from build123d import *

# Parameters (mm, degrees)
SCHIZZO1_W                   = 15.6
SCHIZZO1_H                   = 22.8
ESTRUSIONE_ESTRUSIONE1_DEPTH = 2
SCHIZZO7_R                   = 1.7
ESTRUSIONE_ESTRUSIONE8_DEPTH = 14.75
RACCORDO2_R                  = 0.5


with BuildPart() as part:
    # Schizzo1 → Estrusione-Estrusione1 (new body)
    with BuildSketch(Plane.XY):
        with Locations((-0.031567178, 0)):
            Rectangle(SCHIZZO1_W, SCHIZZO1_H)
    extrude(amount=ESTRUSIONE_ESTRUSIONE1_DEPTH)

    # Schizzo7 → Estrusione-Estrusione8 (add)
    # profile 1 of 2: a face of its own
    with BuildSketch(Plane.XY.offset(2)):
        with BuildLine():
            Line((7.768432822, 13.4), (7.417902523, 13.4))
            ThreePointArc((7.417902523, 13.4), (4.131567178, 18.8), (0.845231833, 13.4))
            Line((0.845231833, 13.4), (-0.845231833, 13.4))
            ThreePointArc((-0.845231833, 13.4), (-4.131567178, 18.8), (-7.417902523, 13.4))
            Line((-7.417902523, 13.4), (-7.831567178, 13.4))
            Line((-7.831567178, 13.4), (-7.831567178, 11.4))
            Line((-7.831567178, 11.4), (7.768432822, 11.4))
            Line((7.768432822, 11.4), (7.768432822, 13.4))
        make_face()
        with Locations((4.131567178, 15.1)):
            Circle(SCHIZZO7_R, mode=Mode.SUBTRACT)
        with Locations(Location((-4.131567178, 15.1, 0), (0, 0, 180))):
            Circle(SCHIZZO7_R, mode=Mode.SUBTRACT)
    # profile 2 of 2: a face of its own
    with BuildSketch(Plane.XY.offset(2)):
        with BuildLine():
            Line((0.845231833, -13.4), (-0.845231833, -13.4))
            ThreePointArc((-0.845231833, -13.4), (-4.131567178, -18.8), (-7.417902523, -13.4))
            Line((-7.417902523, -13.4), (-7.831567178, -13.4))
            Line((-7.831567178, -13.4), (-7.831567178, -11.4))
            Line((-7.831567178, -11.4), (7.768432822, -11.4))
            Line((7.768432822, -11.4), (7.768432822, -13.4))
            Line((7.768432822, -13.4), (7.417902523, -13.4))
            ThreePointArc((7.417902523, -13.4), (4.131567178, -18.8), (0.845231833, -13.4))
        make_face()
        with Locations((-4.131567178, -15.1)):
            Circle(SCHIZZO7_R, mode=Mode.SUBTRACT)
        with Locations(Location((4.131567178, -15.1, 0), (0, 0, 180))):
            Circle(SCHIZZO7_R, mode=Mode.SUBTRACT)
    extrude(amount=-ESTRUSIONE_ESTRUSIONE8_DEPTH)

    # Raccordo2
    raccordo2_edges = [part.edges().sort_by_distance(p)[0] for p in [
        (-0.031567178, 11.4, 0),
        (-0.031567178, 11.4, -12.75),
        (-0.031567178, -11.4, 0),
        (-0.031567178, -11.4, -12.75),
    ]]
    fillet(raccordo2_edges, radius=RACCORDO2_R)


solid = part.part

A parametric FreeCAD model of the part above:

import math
import FreeCAD as App
import Part
import Sketcher
from FreeCAD import Vector
Q = App.Units.Quantity


def edges_at(feature, points):
    """Names of the edges that pass closest to the given points."""
    edges = feature.Shape.Edges
    near = lambda p: min(range(len(edges)), key=lambda i: edges[i].distToShape(Part.Vertex(*p))[0])
    return sorted({f"Edge{near(p) + 1}" for p in points})


def add_polygon(sketch, points):
    """Adds a closed chain of lines whose ends are joined by coincident constraints."""
    first, n = sketch.GeometryCount, len(points)
    for a, b in zip(points, points[1:] + points[:1]):
        sketch.addGeometry(Part.LineSegment(App.Vector(*a, 0), App.Vector(*b, 0)), False)
    for i in range(n):
        sketch.addConstraint(Sketcher.Constraint("Coincident", first + i, 2, first + (i + 1) % n, 1))

doc = App.newDocument("Part")
body = doc.addObject("PartDesign::Body", "Body")

# Sketch on XY plane
sketch1 = doc.addObject("Sketcher::SketchObject", "Sketch")
body.addObject(sketch1)
sketch1.AttachmentSupport = (doc.XY_Plane, [""])
sketch1.MapMode = "FlatFace"
add_polygon(sketch1, [(-7.831567, 11.4), (-7.831567, -11.4), (7.768433, -11.4), (7.768433, 11.4)])  # lines 0-3
sketch1.addConstraint([
    Sketcher.Constraint("Vertical", 0),
    Sketcher.Constraint("Horizontal", 1),
    Sketcher.Constraint("Vertical", 2),
    Sketcher.Constraint("Horizontal", 3),
    Sketcher.Constraint("DistanceX", 1, 1, 1, 2, Q("15.6 mm")),
    Sketcher.Constraint("DistanceY", 0, 2, 0, 1, Q("22.8 mm")),
    Sketcher.Constraint("DistanceY", 0, 2, -1, 1, Q("11.4 mm")),
    Sketcher.Constraint("DistanceX", 0, 2, -1, 1, Q("7.831567 mm")),
])
pad1 = doc.addObject("PartDesign::Pad", "Pad")
body.addObject(pad1)
pad1.Profile = sketch1
pad1.Length = 2

# Sketch on XY plane
sketch2 = doc.addObject("Sketcher::SketchObject", "Sketch001")
body.addObject(sketch2)
sketch2.AttachmentSupport = (doc.XY_Plane, [""])
sketch2.MapMode = "FlatFace"
sketch2.AttachmentOffset = App.Placement(Vector(0, 0, 2), App.Rotation())
sketch2.addGeometry([
    Part.LineSegment(Vector(7.768433, 13.4, 0), Vector(7.417903, 13.4, 0)),  # 0
    Part.ArcOfCircle(Part.Circle(Vector(4.131567, 15.1, 0), Vector(0, 0, 1), 3.7), math.radians(-27.352233), math.radians(207.352233)),  # 1
    Part.LineSegment(Vector(0.845232, 13.4, 0), Vector(-0.845232, 13.4, 0)),  # 2
    Part.ArcOfCircle(Part.Circle(Vector(-4.131567, 15.1, 0), Vector(0, 0, 1), 3.7), math.radians(-27.352233), math.radians(207.352233)),  # 3
    Part.LineSegment(Vector(-7.417903, 13.4, 0), Vector(-7.831567, 13.4, 0)),  # 4
    Part.LineSegment(Vector(-7.831567, 13.4, 0), Vector(-7.831567, 11.4, 0)),  # 5
    Part.LineSegment(Vector(-7.831567, 11.4, 0), Vector(7.768433, 11.4, 0)),  # 6
    Part.LineSegment(Vector(7.768433, 11.4, 0), Vector(7.768433, 13.4, 0)),  # 7
    Part.Circle(Vector(-4.131567, 15.1, 0), Vector(0, 0, 1), 1.7),  # 8
    Part.Circle(Vector(4.131567, 15.1, 0), Vector(0, 0, 1), 1.7),  # 9
    Part.LineSegment(Vector(-0.845232, -13.4, 0), Vector(0.845232, -13.4, 0)),  # 10
    Part.ArcOfCircle(Part.Circle(Vector(4.131567, -15.1, 0), Vector(0, 0, 1), 3.7), math.radians(152.647767), math.radians(387.352233)),  # 11
    Part.LineSegment(Vector(7.417903, -13.4, 0), Vector(7.768433, -13.4, 0)),  # 12
    Part.LineSegment(Vector(7.768433, -13.4, 0), Vector(7.768433, -11.4, 0)),  # 13
    Part.LineSegment(Vector(7.768433, -11.4, 0), Vector(-7.831567, -11.4, 0)),  # 14
    Part.LineSegment(Vector(-7.831567, -11.4, 0), Vector(-7.831567, -13.4, 0)),  # 15
    Part.LineSegment(Vector(-7.831567, -13.4, 0), Vector(-7.417903, -13.4, 0)),  # 16
    Part.ArcOfCircle(Part.Circle(Vector(-4.131567, -15.1, 0), Vector(0, 0, 1), 3.7), math.radians(152.647767), math.radians(387.352233)),  # 17
    Part.Circle(Vector(4.131567, -15.1, 0), Vector(0, 0, 1), 1.7),  # 18
    Part.Circle(Vector(-4.131567, -15.1, 0), Vector(0, 0, 1), 1.7),  # 19
], False)
sketch2.addConstraint([
    Sketcher.Constraint("Coincident", 0, 2, 1, 1),
    Sketcher.Constraint("Coincident", 1, 2, 2, 1),
    Sketcher.Constraint("Coincident", 2, 2, 3, 1),
    Sketcher.Constraint("Coincident", 3, 2, 4, 1),
    Sketcher.Constraint("Coincident", 4, 2, 5, 1),
    Sketcher.Constraint("Coincident", 5, 2, 6, 1),
    Sketcher.Constraint("Coincident", 6, 2, 7, 1),
    Sketcher.Constraint("Coincident", 7, 2, 0, 1),
    Sketcher.Constraint("Coincident", 10, 2, 11, 1),
    Sketcher.Constraint("Coincident", 11, 2, 12, 1),
    Sketcher.Constraint("Coincident", 12, 2, 13, 1),
    Sketcher.Constraint("Coincident", 13, 2, 14, 1),
    Sketcher.Constraint("Coincident", 14, 2, 15, 1),
    Sketcher.Constraint("Coincident", 15, 2, 16, 1),
    Sketcher.Constraint("Coincident", 16, 2, 17, 1),
    Sketcher.Constraint("Coincident", 17, 2, 10, 1),
    Sketcher.Constraint("Horizontal", 0),
    Sketcher.Constraint("Horizontal", 2),
    Sketcher.Constraint("Horizontal", 4),
    Sketcher.Constraint("Vertical", 5),
    Sketcher.Constraint("Horizontal", 6),
    Sketcher.Constraint("Vertical", 7),
    Sketcher.Constraint("Horizontal", 10),
    Sketcher.Constraint("Horizontal", 12),
    Sketcher.Constraint("Vertical", 13),
    Sketcher.Constraint("Horizontal", 14),
    Sketcher.Constraint("Vertical", 15),
    Sketcher.Constraint("Horizontal", 16),
    Sketcher.Constraint("Coincident", 8, 3, 3, 3),
    Sketcher.Constraint("Coincident", 9, 3, 1, 3),
    Sketcher.Constraint("Coincident", 18, 3, 11, 3),
    Sketcher.Constraint("Coincident", 19, 3, 17, 3),
    Sketcher.Constraint("Equal", 1, 3),
    Sketcher.Constraint("Equal", 8, 9),
    Sketcher.Constraint("Equal", 3, 11),
    Sketcher.Constraint("Equal", 11, 17),
    Sketcher.Constraint("Equal", 9, 18),
    Sketcher.Constraint("Equal", 18, 19),
    Sketcher.Constraint("Symmetric", 3, 3, 11, 3, -1, 1),
    Sketcher.Constraint("Symmetric", 1, 3, 17, 3, -1, 1),
    Sketcher.Constraint("Symmetric", 1, 3, 3, 3, -2),
    Sketcher.Constraint("Symmetric", 7, 2, 12, 2, -1),
    Sketcher.Constraint("Symmetric", 5, 2, 14, 2, -1),
    Sketcher.Constraint("Horizontal", 0, 2, 1, 2),
    Sketcher.Constraint("Horizontal", 2, 2, 3, 2),
    Sketcher.Constraint("Horizontal", 10, 2, 11, 2),
    Sketcher.Constraint("Horizontal", 12, 2, 15, 2),
    Sketcher.Constraint("Diameter", 8, Q("3.4 mm")),
    Sketcher.Constraint("Radius", 1, Q("3.7 mm")),
    Sketcher.Constraint("DistanceY", 5, 2, 5, 1, Q("2 mm")),
    Sketcher.Constraint("DistanceX", 6, 1, 6, 2, Q("15.6 mm")),
    Sketcher.Constraint("DistanceY", -1, 1, 1, 3, Q("15.1 mm")),
    Sketcher.Constraint("DistanceY", -1, 1, 0, 2, Q("13.4 mm")),
    Sketcher.Constraint("DistanceX", 4, 2, 3, 3, Q("3.7 mm")),
    Sketcher.Constraint("DistanceX", 0, 2, 0, 1, Q("0.35053 mm")),
])
pad2 = doc.addObject("PartDesign::Pad", "Pad001")
body.addObject(pad2)
pad2.Profile = sketch2
pad2.Length = 14.75
pad2.Reversed = True
doc.recompute()

fillet = doc.addObject("PartDesign::Fillet", "Fillet")
body.addObject(fillet)
fillet.Base = (pad2, edges_at(pad2, [
    (-0.032, 11.4, 0),
    (-0.032, 11.4, -12.75),
    (-0.032, -11.4, 0),
    (-0.032, -11.4, -12.75),
]))
fillet.Radius = 0.5

doc.recompute()
